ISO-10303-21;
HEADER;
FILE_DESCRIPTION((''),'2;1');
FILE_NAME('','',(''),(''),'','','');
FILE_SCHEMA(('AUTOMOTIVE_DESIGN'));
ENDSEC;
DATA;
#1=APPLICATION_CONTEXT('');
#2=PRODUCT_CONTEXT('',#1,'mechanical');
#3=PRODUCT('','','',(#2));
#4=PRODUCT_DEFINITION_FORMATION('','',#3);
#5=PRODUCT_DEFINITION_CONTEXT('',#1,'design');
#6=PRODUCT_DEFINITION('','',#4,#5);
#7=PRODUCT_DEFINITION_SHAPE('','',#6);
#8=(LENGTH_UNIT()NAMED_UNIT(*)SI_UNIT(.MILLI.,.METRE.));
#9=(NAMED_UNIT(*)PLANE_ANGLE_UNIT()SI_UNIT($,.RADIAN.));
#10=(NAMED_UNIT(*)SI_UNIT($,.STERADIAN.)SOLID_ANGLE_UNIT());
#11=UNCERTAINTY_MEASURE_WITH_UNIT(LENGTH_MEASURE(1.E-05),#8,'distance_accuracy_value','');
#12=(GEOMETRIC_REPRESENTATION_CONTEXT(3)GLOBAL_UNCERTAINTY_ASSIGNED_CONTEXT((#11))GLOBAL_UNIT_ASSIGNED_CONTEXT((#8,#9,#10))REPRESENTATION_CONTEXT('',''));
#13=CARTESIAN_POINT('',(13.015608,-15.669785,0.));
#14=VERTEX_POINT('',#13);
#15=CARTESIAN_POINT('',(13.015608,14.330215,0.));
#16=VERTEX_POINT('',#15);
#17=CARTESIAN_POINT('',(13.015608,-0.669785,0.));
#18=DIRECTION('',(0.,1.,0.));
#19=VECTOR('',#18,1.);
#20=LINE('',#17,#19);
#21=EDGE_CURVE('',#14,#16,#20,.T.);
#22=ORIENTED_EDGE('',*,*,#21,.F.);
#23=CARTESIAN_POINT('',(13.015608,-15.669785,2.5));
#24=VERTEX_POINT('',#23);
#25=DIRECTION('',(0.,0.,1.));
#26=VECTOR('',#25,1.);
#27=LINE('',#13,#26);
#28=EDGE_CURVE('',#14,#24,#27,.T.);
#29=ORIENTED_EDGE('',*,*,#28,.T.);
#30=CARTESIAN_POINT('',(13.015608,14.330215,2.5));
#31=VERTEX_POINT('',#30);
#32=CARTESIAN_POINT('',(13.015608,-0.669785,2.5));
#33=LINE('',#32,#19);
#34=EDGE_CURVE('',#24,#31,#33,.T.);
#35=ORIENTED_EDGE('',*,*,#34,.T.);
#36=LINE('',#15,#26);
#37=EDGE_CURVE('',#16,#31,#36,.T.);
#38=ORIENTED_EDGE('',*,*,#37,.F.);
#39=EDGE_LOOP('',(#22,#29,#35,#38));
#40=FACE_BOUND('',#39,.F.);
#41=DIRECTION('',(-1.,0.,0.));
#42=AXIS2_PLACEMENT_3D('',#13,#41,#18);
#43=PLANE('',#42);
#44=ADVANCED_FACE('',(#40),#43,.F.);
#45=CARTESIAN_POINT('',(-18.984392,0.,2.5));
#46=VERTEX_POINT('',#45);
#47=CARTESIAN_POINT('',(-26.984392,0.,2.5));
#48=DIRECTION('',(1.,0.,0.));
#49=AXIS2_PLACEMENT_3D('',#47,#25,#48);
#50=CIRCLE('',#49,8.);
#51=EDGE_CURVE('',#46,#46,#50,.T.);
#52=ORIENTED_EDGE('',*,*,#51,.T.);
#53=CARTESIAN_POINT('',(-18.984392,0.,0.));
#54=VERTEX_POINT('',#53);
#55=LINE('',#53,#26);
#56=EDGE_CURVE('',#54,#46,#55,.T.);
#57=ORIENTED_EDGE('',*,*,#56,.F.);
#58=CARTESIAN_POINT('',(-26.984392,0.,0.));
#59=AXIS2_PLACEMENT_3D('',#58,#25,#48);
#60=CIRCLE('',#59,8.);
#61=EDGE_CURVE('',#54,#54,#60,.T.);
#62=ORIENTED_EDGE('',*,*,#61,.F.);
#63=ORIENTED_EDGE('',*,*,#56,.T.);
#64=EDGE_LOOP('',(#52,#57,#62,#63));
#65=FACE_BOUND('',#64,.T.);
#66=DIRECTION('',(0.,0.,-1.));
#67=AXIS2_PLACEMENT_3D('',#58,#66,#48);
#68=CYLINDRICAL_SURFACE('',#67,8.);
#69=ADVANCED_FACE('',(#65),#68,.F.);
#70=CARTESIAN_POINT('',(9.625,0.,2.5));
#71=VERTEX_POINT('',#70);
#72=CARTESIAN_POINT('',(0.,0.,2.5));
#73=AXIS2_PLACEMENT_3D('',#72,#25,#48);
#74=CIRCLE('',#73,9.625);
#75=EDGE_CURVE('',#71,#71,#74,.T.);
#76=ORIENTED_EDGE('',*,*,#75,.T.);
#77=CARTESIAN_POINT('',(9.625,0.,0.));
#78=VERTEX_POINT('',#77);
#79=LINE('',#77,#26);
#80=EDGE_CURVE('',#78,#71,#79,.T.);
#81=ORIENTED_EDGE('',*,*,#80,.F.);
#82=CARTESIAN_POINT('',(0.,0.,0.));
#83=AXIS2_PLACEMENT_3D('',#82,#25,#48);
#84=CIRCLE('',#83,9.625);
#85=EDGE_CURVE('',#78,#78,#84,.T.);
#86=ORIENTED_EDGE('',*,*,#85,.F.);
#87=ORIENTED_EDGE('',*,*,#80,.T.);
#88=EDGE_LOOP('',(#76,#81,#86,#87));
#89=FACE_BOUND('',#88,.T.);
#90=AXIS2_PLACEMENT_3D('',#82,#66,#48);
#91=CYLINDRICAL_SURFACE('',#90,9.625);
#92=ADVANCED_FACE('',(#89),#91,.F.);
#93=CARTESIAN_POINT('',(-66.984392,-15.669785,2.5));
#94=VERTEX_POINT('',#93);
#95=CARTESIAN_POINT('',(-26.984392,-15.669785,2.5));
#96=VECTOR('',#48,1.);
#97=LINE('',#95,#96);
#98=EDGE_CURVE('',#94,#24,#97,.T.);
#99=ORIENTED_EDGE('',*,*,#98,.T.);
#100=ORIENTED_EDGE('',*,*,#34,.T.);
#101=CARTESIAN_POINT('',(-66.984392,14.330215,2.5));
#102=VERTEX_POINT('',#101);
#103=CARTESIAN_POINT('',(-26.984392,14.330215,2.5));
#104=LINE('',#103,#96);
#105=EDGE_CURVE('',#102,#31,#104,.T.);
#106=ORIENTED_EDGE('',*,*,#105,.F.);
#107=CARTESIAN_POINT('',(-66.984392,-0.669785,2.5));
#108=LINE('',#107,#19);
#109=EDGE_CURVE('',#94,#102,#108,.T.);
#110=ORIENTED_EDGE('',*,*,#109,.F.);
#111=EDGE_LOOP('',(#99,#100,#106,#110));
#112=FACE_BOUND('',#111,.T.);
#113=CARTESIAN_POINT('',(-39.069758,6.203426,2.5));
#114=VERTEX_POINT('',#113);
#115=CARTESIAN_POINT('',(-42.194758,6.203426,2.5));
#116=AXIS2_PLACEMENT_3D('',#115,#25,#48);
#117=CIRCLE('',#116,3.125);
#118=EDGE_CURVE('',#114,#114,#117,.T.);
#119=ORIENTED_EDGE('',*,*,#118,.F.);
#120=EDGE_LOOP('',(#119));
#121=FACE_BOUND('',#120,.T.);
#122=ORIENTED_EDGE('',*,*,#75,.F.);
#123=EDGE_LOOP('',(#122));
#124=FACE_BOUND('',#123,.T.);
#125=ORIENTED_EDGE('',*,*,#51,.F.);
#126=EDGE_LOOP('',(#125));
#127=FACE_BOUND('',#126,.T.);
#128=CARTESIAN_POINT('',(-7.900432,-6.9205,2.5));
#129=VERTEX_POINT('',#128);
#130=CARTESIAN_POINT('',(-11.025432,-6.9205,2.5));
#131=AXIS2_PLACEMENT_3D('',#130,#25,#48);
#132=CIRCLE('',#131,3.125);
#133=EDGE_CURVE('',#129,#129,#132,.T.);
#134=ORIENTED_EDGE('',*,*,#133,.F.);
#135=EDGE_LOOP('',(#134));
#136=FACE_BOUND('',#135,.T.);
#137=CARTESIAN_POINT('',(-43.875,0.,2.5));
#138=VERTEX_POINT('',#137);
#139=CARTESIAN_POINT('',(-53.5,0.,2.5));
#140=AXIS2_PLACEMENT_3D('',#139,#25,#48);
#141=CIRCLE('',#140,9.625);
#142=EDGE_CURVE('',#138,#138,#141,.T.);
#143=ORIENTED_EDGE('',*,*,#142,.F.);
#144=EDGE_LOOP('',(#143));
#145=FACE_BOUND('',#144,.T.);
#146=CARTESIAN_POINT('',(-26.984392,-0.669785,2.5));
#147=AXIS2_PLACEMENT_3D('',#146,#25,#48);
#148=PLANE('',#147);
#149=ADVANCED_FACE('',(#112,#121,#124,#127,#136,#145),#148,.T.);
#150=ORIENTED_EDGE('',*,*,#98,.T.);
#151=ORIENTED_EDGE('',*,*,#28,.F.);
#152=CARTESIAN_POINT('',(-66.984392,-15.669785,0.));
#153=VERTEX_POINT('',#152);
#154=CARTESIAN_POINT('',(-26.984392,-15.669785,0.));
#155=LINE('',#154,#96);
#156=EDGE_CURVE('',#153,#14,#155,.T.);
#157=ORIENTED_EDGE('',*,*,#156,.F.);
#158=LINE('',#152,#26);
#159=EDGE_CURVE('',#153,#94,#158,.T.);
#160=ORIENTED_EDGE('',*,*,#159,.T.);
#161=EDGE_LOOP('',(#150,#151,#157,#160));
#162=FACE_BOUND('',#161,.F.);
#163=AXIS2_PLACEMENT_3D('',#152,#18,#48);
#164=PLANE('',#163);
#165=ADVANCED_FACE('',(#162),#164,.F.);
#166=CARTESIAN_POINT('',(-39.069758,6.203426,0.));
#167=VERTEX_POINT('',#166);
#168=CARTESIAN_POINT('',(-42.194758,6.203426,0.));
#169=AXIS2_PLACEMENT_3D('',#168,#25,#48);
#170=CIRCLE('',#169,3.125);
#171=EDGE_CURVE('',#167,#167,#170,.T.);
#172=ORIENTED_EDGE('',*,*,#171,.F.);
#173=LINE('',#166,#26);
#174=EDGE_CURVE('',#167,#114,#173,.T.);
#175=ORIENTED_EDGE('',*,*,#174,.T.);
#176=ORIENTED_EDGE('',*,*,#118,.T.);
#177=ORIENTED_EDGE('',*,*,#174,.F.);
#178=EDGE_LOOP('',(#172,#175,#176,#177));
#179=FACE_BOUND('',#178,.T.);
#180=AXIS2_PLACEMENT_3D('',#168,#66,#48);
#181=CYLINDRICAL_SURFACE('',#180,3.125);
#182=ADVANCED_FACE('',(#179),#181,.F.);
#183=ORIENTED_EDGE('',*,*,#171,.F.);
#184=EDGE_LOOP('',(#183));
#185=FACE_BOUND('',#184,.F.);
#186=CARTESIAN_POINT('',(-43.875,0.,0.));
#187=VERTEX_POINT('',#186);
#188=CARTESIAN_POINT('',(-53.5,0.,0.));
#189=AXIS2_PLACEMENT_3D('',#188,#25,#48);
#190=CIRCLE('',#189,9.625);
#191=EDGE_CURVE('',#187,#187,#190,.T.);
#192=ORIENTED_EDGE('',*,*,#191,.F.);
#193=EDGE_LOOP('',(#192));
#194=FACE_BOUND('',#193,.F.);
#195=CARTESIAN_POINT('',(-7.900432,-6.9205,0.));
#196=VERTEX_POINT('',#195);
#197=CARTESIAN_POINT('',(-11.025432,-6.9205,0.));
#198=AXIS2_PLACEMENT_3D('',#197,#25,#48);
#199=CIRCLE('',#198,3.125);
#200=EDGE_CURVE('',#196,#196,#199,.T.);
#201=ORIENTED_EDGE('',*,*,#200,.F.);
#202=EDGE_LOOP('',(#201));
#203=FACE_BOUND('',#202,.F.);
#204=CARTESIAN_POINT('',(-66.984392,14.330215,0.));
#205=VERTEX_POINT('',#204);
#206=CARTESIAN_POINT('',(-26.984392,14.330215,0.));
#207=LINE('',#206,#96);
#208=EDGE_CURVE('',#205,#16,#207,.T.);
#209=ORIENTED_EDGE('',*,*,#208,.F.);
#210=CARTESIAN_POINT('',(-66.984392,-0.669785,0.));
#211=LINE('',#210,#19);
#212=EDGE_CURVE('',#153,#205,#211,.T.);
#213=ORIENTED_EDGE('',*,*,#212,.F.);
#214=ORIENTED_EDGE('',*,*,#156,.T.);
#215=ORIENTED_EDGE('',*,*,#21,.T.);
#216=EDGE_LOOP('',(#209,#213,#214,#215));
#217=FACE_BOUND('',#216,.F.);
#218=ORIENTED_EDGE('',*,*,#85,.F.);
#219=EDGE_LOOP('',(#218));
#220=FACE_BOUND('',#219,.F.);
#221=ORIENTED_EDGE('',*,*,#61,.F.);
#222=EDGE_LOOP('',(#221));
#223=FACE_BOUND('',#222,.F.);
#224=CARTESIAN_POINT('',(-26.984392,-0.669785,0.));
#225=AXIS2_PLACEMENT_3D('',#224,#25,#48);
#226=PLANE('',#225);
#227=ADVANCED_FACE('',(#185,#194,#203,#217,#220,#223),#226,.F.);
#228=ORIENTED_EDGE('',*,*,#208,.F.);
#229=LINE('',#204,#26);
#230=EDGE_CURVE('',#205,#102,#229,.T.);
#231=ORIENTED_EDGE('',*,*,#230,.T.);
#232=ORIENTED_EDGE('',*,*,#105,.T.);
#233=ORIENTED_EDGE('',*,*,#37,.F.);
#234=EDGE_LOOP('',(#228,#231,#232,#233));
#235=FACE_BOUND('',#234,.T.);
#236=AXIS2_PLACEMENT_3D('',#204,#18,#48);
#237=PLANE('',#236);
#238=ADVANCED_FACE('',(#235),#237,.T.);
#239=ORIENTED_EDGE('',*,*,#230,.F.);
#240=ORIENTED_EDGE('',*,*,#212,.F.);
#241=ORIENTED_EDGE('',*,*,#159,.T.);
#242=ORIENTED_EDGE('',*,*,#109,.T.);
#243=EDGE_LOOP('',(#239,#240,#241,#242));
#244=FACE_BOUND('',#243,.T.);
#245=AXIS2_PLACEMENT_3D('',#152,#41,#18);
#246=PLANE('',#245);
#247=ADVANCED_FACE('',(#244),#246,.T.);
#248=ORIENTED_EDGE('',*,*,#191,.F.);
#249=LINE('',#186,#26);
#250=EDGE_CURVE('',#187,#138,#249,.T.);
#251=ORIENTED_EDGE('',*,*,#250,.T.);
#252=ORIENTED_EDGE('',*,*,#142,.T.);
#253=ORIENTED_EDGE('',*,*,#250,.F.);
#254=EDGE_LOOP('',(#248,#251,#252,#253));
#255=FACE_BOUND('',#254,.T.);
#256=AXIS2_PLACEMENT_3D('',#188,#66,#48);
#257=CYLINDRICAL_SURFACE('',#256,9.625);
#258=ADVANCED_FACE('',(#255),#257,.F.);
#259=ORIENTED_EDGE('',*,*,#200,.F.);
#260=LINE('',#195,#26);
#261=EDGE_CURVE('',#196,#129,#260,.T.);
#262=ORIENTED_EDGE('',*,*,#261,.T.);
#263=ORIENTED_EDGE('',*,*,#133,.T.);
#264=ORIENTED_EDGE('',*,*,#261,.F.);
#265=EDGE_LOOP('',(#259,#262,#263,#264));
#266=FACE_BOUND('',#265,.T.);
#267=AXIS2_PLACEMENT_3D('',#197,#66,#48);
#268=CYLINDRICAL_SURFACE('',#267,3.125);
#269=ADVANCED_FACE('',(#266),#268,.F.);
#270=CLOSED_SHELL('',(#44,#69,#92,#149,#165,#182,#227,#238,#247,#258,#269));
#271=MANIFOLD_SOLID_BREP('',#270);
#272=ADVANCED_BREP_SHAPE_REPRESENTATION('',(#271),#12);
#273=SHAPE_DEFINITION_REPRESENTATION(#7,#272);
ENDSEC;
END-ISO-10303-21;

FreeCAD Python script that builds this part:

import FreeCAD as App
import Part
import Sketcher

V = App.Vector


def add_polygon(sketch, points):
    """Adds a closed chain of lines whose ends are joined by coincident constraints."""
    first, n = sketch.GeometryCount, len(points)
    for a, b in zip(points, points[1:] + points[:1]):
        sketch.addGeometry(Part.LineSegment(App.Vector(*a, 0), App.Vector(*b, 0)), False)
    for i in range(n):
        sketch.addConstraint(Sketcher.Constraint("Coincident", first + i, 2, first + (i + 1) % n, 1))

doc = App.newDocument("Part")
body = doc.addObject("PartDesign::Body", "Body")

# Sketch on XY plane
sketch1 = body.newObject("Sketcher::SketchObject", "Sketch")
sketch1.AttachmentSupport = (doc.getObject("XY_Plane"), [""])
sketch1.MapMode = "FlatFace"
add_polygon(sketch1, [(-67, 14.3), (-67, -15.7), (13, -15.7), (13, 14.3)])  # lines 0-3
sketch1.addGeometry(Part.Circle(V(-11, -6.9, 0), V(0, 0, 1), 3.1), False)  # 4
sketch1.addGeometry(Part.Circle(V(-53.5, 0, 0), V(0, 0, 1), 9.6), False)  # 5
sketch1.addGeometry(Part.Circle(V(-27, 0, 0), V(0, 0, 1), 8), False)  # 6
sketch1.addGeometry(Part.Circle(V(-42.2, 6.2, 0), V(0, 0, 1), 3.1), False)  # 7
sketch1.addGeometry(Part.Circle(V(0, 0, 0), V(0, 0, 1), 9.6), False)  # 8
sketch1.addConstraint([
    Sketcher.Constraint("Vertical", 0),
    Sketcher.Constraint("Horizontal", 1),
    Sketcher.Constraint("Vertical", 2),
    Sketcher.Constraint("Horizontal", 3),
    Sketcher.Constraint("Coincident", 8, 3, -1, 1),
    Sketcher.Constraint("Equal", 4, 7),
    Sketcher.Constraint("Equal", 5, 8),
    Sketcher.Constraint("PointOnObject", 5, 3, -1),
    Sketcher.Constraint("PointOnObject", 6, 3, -1),
    Sketcher.Constraint("Diameter", 6, 16.0),
    Sketcher.Constraint("Diameter", 4, 6.25),
    Sketcher.Constraint("Diameter", 5, 19.25),
    Sketcher.Constraint("DistanceX", 1, 1, 1, 2, 80.0),
    Sketcher.Constraint("DistanceY", 0, 2, 0, 1, 30.0),
    Sketcher.Constraint("DistanceX", 0, 2, 6, 3, 40.0),
    Sketcher.Constraint("DistanceX", 5, 3, -1, 1, 53.5),
    Sketcher.Constraint("DistanceY", 4, 3, -1, 1, 6.9205),
    Sketcher.Constraint("DistanceX", 6, 3, -1, 1, 26.984392),
    Sketcher.Constraint("DistanceX", 6, 3, 4, 3, 15.95896),
    Sketcher.Constraint("DistanceY", 0, 2, 7, 3, 21.873211),
    Sketcher.Constraint("DistanceX", 7, 3, -1, 1, 42.194758),
    Sketcher.Constraint("DistanceY", -1, 1, 7, 3, 6.203426),
])
pad1 = body.newObject("PartDesign::Pad", "Pad")
pad1.Profile = sketch1
pad1.Length = 2.5

doc.recompute()
